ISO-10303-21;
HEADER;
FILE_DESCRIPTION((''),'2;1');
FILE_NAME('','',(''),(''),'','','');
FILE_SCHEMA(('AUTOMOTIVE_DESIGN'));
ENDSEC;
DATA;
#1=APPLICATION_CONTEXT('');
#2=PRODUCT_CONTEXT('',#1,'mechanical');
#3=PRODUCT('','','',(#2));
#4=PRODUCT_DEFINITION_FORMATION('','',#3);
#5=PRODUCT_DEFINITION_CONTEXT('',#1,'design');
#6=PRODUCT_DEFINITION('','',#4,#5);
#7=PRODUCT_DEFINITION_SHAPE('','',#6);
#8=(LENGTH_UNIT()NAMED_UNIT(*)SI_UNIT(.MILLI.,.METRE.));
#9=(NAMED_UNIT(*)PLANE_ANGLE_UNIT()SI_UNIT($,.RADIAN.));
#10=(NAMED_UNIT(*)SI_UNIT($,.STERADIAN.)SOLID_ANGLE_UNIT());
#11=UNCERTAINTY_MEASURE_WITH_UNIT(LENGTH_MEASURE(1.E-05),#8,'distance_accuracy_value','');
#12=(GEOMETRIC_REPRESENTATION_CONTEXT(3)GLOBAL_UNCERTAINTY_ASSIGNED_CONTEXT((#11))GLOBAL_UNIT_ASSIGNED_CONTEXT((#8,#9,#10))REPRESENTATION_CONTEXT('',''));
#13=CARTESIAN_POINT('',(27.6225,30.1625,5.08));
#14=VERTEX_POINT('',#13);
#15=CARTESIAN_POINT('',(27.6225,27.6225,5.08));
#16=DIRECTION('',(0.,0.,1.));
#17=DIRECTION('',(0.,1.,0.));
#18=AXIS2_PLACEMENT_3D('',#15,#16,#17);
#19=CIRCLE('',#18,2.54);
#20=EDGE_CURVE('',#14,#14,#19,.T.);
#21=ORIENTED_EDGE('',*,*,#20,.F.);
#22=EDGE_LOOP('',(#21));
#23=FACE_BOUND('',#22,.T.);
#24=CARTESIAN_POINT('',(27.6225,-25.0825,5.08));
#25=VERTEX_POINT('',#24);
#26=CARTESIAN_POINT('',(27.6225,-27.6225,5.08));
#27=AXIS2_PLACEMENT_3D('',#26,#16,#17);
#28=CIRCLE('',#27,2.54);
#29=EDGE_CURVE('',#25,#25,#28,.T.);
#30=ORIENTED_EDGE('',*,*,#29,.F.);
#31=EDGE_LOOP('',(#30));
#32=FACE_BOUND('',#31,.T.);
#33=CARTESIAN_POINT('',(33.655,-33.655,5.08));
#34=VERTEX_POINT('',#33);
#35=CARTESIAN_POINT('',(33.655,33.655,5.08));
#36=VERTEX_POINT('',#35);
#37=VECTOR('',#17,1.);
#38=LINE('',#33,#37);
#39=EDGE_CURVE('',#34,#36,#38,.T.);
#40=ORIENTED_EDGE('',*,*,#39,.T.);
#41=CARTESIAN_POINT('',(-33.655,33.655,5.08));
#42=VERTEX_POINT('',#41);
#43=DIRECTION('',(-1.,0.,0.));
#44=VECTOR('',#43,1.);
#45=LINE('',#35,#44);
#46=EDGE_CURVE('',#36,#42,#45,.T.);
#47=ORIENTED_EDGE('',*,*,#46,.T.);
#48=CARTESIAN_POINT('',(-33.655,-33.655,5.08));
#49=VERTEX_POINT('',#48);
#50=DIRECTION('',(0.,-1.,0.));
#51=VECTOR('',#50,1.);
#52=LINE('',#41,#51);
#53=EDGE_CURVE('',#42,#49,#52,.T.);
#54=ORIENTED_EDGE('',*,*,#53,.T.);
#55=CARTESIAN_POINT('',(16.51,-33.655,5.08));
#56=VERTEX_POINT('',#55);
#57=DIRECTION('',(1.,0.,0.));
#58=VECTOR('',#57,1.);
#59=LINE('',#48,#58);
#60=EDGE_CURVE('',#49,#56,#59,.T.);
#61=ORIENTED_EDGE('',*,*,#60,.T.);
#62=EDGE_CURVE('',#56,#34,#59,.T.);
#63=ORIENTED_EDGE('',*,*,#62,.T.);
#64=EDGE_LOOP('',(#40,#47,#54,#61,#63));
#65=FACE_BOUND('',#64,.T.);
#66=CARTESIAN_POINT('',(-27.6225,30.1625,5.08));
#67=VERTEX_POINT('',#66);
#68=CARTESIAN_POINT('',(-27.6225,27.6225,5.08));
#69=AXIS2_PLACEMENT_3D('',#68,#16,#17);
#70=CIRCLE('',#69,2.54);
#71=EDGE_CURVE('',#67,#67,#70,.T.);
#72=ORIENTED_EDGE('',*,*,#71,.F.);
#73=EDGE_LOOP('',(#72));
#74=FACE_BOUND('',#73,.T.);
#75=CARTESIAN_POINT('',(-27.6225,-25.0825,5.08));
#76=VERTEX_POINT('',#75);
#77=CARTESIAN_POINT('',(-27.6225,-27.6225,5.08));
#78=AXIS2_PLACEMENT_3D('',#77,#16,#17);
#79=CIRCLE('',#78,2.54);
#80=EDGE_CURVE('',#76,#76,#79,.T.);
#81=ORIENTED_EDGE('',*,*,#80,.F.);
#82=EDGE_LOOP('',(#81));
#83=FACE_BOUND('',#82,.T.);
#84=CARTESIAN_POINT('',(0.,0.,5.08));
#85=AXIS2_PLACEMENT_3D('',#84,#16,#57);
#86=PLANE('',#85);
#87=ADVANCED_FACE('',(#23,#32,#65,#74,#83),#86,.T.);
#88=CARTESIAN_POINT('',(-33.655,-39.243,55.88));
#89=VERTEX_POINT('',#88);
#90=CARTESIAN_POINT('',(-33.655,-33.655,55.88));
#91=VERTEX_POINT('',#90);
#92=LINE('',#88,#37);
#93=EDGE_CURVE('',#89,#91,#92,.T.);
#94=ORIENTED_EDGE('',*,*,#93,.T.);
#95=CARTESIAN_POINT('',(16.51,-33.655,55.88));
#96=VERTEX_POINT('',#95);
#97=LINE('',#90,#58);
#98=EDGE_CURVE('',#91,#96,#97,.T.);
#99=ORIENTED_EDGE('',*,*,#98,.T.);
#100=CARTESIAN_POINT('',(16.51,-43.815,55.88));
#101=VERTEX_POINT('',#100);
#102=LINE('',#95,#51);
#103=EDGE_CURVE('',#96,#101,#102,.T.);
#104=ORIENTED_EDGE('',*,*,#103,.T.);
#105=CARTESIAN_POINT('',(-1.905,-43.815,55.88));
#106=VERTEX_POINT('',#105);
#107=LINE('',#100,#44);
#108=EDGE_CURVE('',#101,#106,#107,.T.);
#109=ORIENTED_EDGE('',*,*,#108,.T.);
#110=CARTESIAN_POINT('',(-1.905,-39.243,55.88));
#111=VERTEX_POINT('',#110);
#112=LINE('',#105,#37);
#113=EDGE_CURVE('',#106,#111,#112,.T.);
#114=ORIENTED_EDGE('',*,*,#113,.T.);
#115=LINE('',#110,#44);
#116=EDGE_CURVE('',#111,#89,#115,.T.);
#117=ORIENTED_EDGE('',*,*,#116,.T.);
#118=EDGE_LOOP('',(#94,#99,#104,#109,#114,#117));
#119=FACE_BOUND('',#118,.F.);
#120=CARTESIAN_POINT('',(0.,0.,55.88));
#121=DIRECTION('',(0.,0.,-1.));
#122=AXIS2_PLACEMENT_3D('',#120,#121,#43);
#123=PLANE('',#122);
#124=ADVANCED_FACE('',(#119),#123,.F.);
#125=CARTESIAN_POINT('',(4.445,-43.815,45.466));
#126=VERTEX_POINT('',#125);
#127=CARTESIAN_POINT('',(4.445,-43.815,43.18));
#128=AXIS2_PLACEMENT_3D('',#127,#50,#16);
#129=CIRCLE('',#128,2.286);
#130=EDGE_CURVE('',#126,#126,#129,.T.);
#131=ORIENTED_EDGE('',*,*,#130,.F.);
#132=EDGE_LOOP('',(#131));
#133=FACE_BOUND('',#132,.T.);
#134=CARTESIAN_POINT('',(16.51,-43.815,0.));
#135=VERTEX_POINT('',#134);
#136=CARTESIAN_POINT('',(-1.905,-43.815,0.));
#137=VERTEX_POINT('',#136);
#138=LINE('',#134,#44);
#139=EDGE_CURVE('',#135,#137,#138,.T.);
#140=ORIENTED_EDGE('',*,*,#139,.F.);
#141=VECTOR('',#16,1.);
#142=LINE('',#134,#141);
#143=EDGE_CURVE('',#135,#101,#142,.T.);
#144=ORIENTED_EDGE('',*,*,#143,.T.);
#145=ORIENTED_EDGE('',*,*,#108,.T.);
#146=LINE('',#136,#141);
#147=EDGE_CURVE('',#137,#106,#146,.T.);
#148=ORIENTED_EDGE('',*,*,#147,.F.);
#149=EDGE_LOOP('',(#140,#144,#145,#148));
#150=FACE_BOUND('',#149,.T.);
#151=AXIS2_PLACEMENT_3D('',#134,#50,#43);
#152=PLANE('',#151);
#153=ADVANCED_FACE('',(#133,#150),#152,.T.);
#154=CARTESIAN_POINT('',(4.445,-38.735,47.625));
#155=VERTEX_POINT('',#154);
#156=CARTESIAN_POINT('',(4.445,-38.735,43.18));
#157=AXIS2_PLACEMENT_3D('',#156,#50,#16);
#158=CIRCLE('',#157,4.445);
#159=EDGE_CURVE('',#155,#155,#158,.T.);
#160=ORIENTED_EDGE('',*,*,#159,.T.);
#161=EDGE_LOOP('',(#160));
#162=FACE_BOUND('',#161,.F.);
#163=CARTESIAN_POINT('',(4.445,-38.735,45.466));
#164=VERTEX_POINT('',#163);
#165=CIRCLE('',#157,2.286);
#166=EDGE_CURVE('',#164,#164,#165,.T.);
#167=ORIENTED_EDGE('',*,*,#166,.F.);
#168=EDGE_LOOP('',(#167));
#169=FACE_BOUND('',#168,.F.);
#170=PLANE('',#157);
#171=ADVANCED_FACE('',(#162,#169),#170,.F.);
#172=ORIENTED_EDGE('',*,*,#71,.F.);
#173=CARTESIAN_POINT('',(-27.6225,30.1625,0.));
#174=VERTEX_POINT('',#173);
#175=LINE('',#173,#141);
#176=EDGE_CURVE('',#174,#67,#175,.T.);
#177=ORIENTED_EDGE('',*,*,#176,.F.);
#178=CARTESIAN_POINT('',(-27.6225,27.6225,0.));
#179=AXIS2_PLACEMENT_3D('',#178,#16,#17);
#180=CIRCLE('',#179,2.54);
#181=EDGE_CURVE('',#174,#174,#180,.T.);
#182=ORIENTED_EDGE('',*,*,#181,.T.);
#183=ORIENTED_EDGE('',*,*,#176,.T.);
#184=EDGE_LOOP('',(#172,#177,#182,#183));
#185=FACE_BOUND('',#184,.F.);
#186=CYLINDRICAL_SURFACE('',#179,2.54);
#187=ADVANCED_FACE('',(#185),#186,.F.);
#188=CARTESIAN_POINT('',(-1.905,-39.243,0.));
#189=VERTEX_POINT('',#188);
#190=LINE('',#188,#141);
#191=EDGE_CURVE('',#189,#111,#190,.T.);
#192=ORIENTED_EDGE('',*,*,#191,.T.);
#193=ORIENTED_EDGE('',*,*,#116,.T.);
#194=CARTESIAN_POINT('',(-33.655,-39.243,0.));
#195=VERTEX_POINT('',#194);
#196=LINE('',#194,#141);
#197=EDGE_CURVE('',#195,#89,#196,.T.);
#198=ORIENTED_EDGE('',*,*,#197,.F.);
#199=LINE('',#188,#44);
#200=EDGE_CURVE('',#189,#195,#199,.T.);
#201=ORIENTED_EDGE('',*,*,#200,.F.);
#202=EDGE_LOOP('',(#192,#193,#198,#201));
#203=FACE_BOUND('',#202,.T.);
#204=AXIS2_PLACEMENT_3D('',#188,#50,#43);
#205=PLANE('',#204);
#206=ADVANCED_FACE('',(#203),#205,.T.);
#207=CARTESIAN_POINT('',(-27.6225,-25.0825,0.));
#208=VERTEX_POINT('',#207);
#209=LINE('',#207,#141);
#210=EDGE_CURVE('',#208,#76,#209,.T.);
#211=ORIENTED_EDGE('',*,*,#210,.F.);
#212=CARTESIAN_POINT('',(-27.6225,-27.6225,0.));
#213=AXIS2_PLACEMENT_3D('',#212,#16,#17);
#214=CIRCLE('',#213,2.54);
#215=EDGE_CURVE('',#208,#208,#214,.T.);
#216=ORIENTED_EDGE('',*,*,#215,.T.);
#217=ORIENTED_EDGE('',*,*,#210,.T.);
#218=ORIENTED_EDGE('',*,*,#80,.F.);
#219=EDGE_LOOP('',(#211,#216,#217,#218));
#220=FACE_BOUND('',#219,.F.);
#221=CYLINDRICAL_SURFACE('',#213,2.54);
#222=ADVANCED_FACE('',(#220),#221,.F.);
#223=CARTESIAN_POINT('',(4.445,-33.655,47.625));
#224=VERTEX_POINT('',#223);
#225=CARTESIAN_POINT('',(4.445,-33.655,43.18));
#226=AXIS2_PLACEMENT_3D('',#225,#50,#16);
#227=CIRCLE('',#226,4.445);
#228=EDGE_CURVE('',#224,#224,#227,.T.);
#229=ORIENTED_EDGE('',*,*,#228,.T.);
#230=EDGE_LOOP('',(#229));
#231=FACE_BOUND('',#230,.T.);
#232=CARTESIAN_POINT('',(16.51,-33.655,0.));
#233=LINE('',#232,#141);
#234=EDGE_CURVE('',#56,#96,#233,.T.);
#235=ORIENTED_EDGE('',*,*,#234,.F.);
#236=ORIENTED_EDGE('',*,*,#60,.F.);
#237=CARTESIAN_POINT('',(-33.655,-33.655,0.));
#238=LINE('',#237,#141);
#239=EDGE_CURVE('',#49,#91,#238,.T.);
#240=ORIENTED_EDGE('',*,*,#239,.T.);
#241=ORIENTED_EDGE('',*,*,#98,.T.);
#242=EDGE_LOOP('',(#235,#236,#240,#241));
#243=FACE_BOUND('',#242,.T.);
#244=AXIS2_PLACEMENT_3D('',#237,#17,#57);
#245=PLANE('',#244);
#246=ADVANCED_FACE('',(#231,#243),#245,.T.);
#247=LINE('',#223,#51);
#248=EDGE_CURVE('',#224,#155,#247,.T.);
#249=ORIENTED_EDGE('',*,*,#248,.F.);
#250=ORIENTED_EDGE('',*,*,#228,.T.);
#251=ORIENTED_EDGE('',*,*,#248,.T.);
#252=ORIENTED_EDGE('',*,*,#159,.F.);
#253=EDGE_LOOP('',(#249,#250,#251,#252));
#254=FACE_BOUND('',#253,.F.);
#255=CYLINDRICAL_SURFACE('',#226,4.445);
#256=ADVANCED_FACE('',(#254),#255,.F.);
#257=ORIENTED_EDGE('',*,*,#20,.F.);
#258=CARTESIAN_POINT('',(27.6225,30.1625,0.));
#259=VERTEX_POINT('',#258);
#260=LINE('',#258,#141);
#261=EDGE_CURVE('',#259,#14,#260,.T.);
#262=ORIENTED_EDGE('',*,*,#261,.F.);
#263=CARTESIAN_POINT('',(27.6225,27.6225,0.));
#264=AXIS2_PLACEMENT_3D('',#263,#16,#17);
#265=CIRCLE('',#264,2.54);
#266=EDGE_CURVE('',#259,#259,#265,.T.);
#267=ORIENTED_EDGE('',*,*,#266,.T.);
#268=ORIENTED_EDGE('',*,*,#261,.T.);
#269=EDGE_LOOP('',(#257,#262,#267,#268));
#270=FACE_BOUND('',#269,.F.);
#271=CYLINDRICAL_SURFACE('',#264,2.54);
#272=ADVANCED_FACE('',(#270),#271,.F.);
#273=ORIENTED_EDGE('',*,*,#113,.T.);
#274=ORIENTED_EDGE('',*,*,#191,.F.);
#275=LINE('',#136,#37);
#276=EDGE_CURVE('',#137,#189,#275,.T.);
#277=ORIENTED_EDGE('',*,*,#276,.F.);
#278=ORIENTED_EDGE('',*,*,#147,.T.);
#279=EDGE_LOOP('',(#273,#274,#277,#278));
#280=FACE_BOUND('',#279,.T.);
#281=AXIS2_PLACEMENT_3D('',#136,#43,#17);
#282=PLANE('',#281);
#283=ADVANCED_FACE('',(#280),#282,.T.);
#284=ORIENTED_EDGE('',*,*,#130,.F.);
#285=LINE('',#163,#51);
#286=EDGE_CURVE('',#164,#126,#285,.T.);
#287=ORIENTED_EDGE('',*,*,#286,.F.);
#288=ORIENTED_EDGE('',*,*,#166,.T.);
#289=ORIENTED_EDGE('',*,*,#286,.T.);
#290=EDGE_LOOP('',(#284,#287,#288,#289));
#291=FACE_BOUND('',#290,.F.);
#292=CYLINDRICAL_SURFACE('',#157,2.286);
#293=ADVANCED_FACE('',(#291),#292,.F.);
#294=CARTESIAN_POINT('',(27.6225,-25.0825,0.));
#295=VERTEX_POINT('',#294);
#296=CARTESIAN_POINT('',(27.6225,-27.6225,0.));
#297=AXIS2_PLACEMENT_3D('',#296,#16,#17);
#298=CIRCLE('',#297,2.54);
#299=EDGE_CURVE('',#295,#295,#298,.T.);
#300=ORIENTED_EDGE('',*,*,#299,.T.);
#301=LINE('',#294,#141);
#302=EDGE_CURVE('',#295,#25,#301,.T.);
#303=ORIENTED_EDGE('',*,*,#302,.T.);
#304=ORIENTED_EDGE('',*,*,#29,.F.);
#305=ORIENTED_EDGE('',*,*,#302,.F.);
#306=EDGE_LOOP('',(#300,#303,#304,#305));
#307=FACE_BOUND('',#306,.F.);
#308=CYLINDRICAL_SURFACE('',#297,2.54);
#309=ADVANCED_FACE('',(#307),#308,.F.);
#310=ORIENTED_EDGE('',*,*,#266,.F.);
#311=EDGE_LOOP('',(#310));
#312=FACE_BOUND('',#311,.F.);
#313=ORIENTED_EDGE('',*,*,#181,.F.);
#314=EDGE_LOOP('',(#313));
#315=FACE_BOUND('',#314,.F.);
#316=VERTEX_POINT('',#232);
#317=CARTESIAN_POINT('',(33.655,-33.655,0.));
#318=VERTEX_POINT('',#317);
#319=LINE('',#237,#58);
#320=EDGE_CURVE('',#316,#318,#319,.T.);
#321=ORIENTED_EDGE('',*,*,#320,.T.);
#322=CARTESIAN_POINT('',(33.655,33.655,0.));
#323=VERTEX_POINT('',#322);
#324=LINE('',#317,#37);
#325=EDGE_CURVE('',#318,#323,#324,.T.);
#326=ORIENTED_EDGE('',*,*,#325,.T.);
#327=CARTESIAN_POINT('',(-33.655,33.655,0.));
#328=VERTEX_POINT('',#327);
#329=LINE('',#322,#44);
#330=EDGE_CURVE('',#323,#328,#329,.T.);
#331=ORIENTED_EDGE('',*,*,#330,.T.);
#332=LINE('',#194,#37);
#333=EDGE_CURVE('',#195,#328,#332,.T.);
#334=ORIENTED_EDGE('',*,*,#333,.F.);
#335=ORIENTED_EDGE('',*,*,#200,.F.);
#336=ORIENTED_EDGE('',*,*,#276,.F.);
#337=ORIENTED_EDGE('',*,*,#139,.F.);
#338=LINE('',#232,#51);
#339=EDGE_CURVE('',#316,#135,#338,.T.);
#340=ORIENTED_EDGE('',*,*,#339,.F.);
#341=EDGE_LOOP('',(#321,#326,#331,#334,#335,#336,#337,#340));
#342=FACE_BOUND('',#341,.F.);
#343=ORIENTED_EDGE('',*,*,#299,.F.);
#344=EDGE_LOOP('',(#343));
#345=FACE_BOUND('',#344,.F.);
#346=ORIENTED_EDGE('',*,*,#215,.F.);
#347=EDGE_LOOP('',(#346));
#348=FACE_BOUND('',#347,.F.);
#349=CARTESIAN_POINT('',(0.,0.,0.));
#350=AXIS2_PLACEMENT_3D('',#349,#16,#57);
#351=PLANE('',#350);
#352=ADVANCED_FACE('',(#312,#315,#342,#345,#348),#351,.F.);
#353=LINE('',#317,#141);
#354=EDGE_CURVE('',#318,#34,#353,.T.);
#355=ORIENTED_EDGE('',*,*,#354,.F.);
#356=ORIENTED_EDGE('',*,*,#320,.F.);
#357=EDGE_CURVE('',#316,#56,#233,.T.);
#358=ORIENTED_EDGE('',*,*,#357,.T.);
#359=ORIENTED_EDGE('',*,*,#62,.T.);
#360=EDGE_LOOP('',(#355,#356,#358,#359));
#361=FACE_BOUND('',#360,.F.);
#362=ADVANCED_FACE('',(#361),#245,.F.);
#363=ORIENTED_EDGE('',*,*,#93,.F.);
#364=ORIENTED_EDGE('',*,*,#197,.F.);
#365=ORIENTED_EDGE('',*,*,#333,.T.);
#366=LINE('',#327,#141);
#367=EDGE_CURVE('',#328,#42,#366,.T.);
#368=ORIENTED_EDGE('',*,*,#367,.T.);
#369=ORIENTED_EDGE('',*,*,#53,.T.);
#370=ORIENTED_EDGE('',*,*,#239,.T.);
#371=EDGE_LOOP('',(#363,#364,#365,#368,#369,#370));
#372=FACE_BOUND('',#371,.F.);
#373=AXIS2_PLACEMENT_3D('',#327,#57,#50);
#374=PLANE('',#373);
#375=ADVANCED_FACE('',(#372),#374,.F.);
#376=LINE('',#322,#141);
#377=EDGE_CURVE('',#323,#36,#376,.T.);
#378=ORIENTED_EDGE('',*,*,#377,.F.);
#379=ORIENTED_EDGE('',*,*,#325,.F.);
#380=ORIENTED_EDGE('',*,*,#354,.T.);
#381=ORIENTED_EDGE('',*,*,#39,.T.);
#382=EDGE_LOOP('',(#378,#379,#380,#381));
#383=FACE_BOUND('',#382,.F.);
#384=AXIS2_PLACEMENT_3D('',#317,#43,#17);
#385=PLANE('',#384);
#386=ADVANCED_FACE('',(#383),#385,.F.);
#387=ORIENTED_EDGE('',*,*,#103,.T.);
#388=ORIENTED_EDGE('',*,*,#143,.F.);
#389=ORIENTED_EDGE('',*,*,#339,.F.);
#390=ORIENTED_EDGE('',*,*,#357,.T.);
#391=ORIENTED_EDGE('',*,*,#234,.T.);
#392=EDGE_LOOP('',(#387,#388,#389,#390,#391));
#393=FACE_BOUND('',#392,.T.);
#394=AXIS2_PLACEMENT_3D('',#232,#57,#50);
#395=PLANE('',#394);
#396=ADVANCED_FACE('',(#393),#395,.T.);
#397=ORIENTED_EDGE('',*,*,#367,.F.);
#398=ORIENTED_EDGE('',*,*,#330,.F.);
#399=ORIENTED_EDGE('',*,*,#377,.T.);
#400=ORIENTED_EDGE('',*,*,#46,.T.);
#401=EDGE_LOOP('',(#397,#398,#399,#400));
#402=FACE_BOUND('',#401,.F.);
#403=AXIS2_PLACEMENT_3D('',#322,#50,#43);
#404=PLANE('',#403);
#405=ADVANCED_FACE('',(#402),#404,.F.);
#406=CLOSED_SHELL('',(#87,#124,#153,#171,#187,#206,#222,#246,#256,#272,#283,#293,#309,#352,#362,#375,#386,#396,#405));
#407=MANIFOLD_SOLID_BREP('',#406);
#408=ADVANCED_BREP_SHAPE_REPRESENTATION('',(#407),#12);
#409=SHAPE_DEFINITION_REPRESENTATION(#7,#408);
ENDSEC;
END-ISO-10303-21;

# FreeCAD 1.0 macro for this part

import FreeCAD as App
import Part
import Sketcher
Q = App.Units.Quantity


def add_polygon(sketch, points):
    """Adds a closed chain of lines whose ends are joined by coincident constraints."""
    first, n = sketch.GeometryCount, len(points)
    for a, b in zip(points, points[1:] + points[:1]):
        sketch.addGeometry(Part.LineSegment(App.Vector(*a, 0), App.Vector(*b, 0)), False)
    for i in range(n):
        sketch.addConstraint(Sketcher.Constraint("Coincident", first + i, 2, first + (i + 1) % n, 1))

doc = App.newDocument("Part")
body = doc.addObject("PartDesign::Body", "Body")

sketch1 = doc.addObject("Sketcher::SketchObject", "Sketch")
body.addObject(sketch1)
sketch1.AttachmentSupport = (doc.XY_Plane, [""])
sketch1.MapMode = "FlatFace"
add_polygon(sketch1, [(33.655, -33.655), (33.655, 33.655), (-33.655, 33.655), (-33.655, -33.655)])
sketch1.addConstraint([
    Sketcher.Constraint("Vertical", 0),
    Sketcher.Constraint("Horizontal", 1),
    Sketcher.Constraint("Vertical", 2),
    Sketcher.Constraint("Horizontal", 3),
    Sketcher.Constraint("Symmetric", 0, 2, 2, 2, -1, 1),
    Sketcher.Constraint("Equal", 3, 0),
    Sketcher.Constraint("DistanceX", 1, 2, 1, 1, Q("2.65 in")),
])
pad1 = doc.addObject("PartDesign::Pad", "Pad")
body.addObject(pad1)
pad1.Profile = sketch1
pad1.Length = Q("0.2 in")

sketch2 = doc.addObject("Sketcher::SketchObject", "Sketch001")
body.addObject(sketch2)
sketch2.AttachmentSupport = (doc.XY_Plane, [""])
sketch2.MapMode = "FlatFace"
sketch2.addGeometry([
    Part.Circle(App.Vector(-27.6225, 27.6225, 0), App.Vector(0, 0, 1), 2.54),
    Part.Circle(App.Vector(27.6225, 27.6225, 0), App.Vector(0, 0, 1), 2.54),
    Part.Circle(App.Vector(27.6225, -27.6225, 0), App.Vector(0, 0, 1), 2.54),
    Part.Circle(App.Vector(-27.6225, -27.6225, 0), App.Vector(0, 0, 1), 2.54),
], False)
sketch2.addConstraint([
    Sketcher.Constraint("Equal", 0, 1),
    Sketcher.Constraint("Equal", 1, 2),
    Sketcher.Constraint("Equal", 2, 3),
    Sketcher.Constraint("Symmetric", 0, 3, 2, 3, -1, 1),
    Sketcher.Constraint("Symmetric", 1, 3, 3, 3, -1, 1),
    Sketcher.Constraint("Symmetric", 0, 3, 1, 3, -2),
    Sketcher.Constraint("Diameter", 0, Q("0.2 in")),
    Sketcher.Constraint("DistanceX", 0, 3, 1, 3, Q("2.175 in")),
    Sketcher.Constraint("DistanceY", 2, 3, 1, 3, Q("2.175 in")),
])
doc.recompute()
hole = doc.addObject("PartDesign::Hole", "Hole")
body.addObject(hole)
hole.Profile = sketch2
hole.ThreadType = "None"
hole.Diameter = Q("0.2 in")
hole.DepthType = "ThroughAll"
hole.Reversed = True

sketch3 = doc.addObject("Sketcher::SketchObject", "Sketch002")
body.addObject(sketch3)
sketch3.AttachmentSupport = (doc.XY_Plane, [""])
sketch3.MapMode = "FlatFace"
add_polygon(sketch3, [(-33.655, -39.243), (-33.655, -33.655), (16.51, -33.655), (16.51, -43.815), (-1.905, -43.815), (-1.905, -39.243)])
sketch3.addConstraint([
    Sketcher.Constraint("Vertical", 0),
    Sketcher.Constraint("Horizontal", 1),
    Sketcher.Constraint("Vertical", 2),
    Sketcher.Constraint("Horizontal", 3),
    Sketcher.Constraint("Vertical", 4),
    Sketcher.Constraint("Horizontal", 5),
    Sketcher.Constraint("DistanceY", 2, 2, 2, 1, Q("0.4 in")),
    Sketcher.Constraint("DistanceX", 5, 2, 5, 1, Q("1.25 in")),
    Sketcher.Constraint("DistanceY", 4, 1, 4, 2, Q("0.18 in")),
    Sketcher.Constraint("DistanceX", 1, 1, 1, 2, Q("1.975 in")),
    Sketcher.Constraint("DistanceX", -1, 1, 1, 2, Q("0.65 in")),
    Sketcher.Constraint("DistanceY", 0, 2, -1, 1, Q("1.325 in")),
])
pad2 = doc.addObject("PartDesign::Pad", "Pad001")
body.addObject(pad2)
pad2.Profile = sketch3
pad2.Length = Q("2.2 in")

sketch4 = doc.addObject("Sketcher::SketchObject", "Sketch003")
body.addObject(sketch4)
sketch4.AttachmentSupport = (doc.XZ_Plane, [""])
sketch4.MapMode = "FlatFace"
sketch4.AttachmentOffset = App.Placement(App.Vector(0, 0, 1.325 * 25.4), App.Rotation())
sketch4.addGeometry(Part.Circle(App.Vector(4.445, 43.18, 0), App.Vector(0, 0, 1), 2.286), False)
sketch4.addConstraint([
    Sketcher.Constraint("Diameter", 0, Q("0.18 in")),
    Sketcher.Constraint("DistanceY", -1, 1, 0, 3, Q("1.7 in")),
    Sketcher.Constraint("DistanceX", -1, 1, 0, 3, Q("0.175 in")),
])
doc.recompute()
hole2 = doc.addObject("PartDesign::Hole", "Hole001")
body.addObject(hole2)
hole2.Profile = sketch4
hole2.ThreadType = "None"
hole2.Diameter = Q("0.18 in")
hole2.DepthType = "ThroughAll"
hole2.HoleCutType = "Counterbore"
hole2.HoleCutDiameter = Q("0.35 in")
hole2.HoleCutDepth = Q("0.2 in")
hole2.Reversed = True

doc.recompute()
